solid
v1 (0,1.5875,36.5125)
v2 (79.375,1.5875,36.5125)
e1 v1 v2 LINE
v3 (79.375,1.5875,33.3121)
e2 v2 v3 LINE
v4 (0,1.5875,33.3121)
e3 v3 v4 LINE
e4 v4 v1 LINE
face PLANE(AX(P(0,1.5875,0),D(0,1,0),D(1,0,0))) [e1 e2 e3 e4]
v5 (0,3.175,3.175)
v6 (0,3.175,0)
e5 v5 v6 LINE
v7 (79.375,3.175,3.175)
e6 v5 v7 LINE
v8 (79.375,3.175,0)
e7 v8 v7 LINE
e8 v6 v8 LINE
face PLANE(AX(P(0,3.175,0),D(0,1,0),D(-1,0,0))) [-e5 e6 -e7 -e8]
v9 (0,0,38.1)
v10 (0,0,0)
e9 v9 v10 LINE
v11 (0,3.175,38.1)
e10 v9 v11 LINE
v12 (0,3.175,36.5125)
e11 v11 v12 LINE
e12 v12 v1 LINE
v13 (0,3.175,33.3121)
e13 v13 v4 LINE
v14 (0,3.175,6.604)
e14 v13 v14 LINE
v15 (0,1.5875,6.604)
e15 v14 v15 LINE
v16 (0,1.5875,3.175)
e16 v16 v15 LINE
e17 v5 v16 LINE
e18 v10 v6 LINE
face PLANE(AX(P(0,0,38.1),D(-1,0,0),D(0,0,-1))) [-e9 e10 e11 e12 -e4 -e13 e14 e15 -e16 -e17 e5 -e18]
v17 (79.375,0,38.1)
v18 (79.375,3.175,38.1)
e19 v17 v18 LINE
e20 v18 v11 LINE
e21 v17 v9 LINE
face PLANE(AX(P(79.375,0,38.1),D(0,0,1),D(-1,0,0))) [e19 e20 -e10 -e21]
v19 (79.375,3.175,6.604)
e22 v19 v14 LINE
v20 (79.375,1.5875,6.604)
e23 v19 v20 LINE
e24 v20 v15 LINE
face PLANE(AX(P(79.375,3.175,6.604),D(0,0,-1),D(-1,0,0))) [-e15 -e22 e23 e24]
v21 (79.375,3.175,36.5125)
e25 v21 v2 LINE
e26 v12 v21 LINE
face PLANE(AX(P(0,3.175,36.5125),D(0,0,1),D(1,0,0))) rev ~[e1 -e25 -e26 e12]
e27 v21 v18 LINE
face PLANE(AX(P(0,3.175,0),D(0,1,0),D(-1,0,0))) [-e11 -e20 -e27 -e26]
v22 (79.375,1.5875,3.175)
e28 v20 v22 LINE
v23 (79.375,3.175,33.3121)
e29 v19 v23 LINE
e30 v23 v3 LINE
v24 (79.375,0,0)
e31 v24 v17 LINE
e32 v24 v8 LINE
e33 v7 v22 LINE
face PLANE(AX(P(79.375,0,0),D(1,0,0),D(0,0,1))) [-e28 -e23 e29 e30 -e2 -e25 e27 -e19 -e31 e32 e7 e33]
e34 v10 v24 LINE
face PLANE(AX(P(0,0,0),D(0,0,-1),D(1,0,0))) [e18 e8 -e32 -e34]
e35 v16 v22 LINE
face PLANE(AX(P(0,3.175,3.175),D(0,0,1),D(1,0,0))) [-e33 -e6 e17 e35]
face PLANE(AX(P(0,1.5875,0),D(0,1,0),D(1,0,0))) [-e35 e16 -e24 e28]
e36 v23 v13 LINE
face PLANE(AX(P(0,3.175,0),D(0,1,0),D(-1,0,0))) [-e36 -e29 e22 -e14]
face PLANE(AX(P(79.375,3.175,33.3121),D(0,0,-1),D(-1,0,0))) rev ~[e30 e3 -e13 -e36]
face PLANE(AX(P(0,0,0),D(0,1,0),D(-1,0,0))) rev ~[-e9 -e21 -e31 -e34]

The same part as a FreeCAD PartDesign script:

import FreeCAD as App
import Part
import Sketcher

V = App.Vector
Q = App.Units.Quantity

doc = App.newDocument("Part")
params = doc.addObject("Spreadsheet::Sheet", "Params")
for row, (alias, value) in enumerate([
    ("sketch1_height", "1.5 in"),
    ("sketch1_width", "3.125 in"),
    ("pad1_length", "0.125 in"),
    ("sketch2_height", "0.135 in"),
    ("sketch2_height2", "0.126 in"),
    ("sketch2_width", "3.125 in"),
    ("pocket1_length", "0.0625 in"),
], start=1):
    params.set(f"A{row}", alias)
    params.set(f"B{row}", "=" + value)
    params.setAlias(f"B{row}", alias)

body = doc.addObject("PartDesign::Body", "Body")

# Sketch on XZ plane
sketch1 = body.newObject("Sketcher::SketchObject", "Sketch")
sketch1.AttachmentSupport = (doc.getObject("XZ_Plane"), [""])
sketch1.MapMode = "FlatFace"
sketch1.addGeometry(Part.LineSegment(V(79, 0, 0), V(0, 0, 0)), False)
sketch1.addGeometry(Part.LineSegment(V(0, 0, 0), V(0, 38, 0)), False)
sketch1.addGeometry(Part.LineSegment(V(0, 38, 0), V(79, 38, 0)), False)
sketch1.addGeometry(Part.LineSegment(V(79, 38, 0), V(79, 0, 0)), False)
sketch1.addConstraint(Sketcher.Constraint("Coincident", 0, 2, 1, 1))
sketch1.addConstraint(Sketcher.Constraint("Coincident", 1, 2, 2, 1))
sketch1.addConstraint(Sketcher.Constraint("Coincident", 2, 2, 3, 1))
sketch1.addConstraint(Sketcher.Constraint("Coincident", 3, 2, 0, 1))
sketch1.addConstraint(Sketcher.Constraint("Horizontal", 0))
sketch1.addConstraint(Sketcher.Constraint("Vertical", 1))
sketch1.addConstraint(Sketcher.Constraint("Horizontal", 2))
sketch1.addConstraint(Sketcher.Constraint("Vertical", 3))
sketch1.addConstraint(Sketcher.Constraint("Coincident", 0, 2, -1, 1))
sketch1.addConstraint(Sketcher.Constraint("DistanceY", 1, 1, 1, 2, Q("1.5 in")))
sketch1.addConstraint(Sketcher.Constraint("DistanceX", 0, 2, 0, 1, Q("3.125 in")))
sketch1.setExpression("Constraints[9]", "Params.sketch1_height")
sketch1.setExpression("Constraints[10]", "Params.sketch1_width")
pad1 = body.newObject("PartDesign::Pad", "Pad")
pad1.Profile = sketch1
pad1.setExpression("Length", "Params.pad1_length")
pad1.Reversed = True

# Sketch on XZ plane
sketch2 = body.newObject("Sketcher::SketchObject", "Sketch001")
sketch2.AttachmentSupport = (doc.getObject("XZ_Plane"), [""])
sketch2.MapMode = "FlatFace"
sketch2.AttachmentOffset = App.Placement(V(0, 0, -0.125 * 25.4), App.Rotation())
sketch2.addGeometry(Part.LineSegment(V(79.4, 6.6, 0), V(79.4, 3.2, 0)), False)
sketch2.addGeometry(Part.LineSegment(V(79.4, 3.2, 0), V(0, 3.2, 0)), False)
sketch2.addGeometry(Part.LineSegment(V(0, 3.2, 0), V(0, 6.6, 0)), False)
sketch2.addGeometry(Part.LineSegment(V(0, 6.6, 0), V(79.4, 6.6, 0)), False)
sketch2.addGeometry(Part.LineSegment(V(79.4, 36.5, 0), V(79.4, 33.3, 0)), False)
sketch2.addGeometry(Part.LineSegment(V(79.4, 33.3, 0), V(0, 33.3, 0)), False)
sketch2.addGeometry(Part.LineSegment(V(0, 33.3, 0), V(0, 36.5, 0)), False)
sketch2.addGeometry(Part.LineSegment(V(0, 36.5, 0), V(79.4, 36.5, 0)), False)
sketch2.addConstraint(Sketcher.Constraint("Coincident", 0, 2, 1, 1))
sketch2.addConstraint(Sketcher.Constraint("Coincident", 1, 2, 2, 1))
sketch2.addConstraint(Sketcher.Constraint("Coincident", 2, 2, 3, 1))
sketch2.addConstraint(Sketcher.Constraint("Coincident", 3, 2, 0, 1))
sketch2.addConstraint(Sketcher.Constraint("Coincident", 4, 2, 5, 1))
sketch2.addConstraint(Sketcher.Constraint("Coincident", 5, 2, 6, 1))
sketch2.addConstraint(Sketcher.Constraint("Coincident", 6, 2, 7, 1))
sketch2.addConstraint(Sketcher.Constraint("Coincident", 7, 2, 4, 1))
sketch2.addConstraint(Sketcher.Constraint("Vertical", 0))
sketch2.addConstraint(Sketcher.Constraint("Horizontal", 1))
sketch2.addConstraint(Sketcher.Constraint("Vertical", 2))
sketch2.addConstraint(Sketcher.Constraint("Horizontal", 3))
sketch2.addConstraint(Sketcher.Constraint("Vertical", 4))
sketch2.addConstraint(Sketcher.Constraint("Horizontal", 5))
sketch2.addConstraint(Sketcher.Constraint("Vertical", 6))
sketch2.addConstraint(Sketcher.Constraint("Horizontal", 7))
sketch2.addConstraint(Sketcher.Constraint("PointOnObject", 1, 2, -2))
sketch2.addConstraint(Sketcher.Constraint("PointOnObject", 5, 2, -2))
sketch2.addConstraint(Sketcher.Constraint("Vertical", 3, 2, 4, 2))
sketch2.addConstraint(Sketcher.Constraint("DistanceY", 0, 2, 0, 1, Q("0.135 in")))
sketch2.addConstraint(Sketcher.Constraint("DistanceY", 4, 2, 4, 1, Q("0.126 in")))
sketch2.addConstraint(Sketcher.Constraint("DistanceY", -1, 1, 0, 2, Q("0.125 in")))
sketch2.addConstraint(Sketcher.Constraint("DistanceX", 1, 2, 1, 1, Q("3.125 in")))
sketch2.addConstraint(Sketcher.Constraint("DistanceY", -1, 1, 6, 2, Q("1.4375 in")))
sketch2.setExpression("Constraints[19]", "Params.sketch2_height")
sketch2.setExpression("Constraints[20]", "Params.sketch2_height2")
sketch2.setExpression("Constraints[22]", "Params.sketch2_width")
pocket1 = body.newObject("PartDesign::Pocket", "Pocket")
pocket1.Profile = sketch2
pocket1.setExpression("Length", "Params.pocket1_length")
pocket1.Reversed = True

doc.recompute()
